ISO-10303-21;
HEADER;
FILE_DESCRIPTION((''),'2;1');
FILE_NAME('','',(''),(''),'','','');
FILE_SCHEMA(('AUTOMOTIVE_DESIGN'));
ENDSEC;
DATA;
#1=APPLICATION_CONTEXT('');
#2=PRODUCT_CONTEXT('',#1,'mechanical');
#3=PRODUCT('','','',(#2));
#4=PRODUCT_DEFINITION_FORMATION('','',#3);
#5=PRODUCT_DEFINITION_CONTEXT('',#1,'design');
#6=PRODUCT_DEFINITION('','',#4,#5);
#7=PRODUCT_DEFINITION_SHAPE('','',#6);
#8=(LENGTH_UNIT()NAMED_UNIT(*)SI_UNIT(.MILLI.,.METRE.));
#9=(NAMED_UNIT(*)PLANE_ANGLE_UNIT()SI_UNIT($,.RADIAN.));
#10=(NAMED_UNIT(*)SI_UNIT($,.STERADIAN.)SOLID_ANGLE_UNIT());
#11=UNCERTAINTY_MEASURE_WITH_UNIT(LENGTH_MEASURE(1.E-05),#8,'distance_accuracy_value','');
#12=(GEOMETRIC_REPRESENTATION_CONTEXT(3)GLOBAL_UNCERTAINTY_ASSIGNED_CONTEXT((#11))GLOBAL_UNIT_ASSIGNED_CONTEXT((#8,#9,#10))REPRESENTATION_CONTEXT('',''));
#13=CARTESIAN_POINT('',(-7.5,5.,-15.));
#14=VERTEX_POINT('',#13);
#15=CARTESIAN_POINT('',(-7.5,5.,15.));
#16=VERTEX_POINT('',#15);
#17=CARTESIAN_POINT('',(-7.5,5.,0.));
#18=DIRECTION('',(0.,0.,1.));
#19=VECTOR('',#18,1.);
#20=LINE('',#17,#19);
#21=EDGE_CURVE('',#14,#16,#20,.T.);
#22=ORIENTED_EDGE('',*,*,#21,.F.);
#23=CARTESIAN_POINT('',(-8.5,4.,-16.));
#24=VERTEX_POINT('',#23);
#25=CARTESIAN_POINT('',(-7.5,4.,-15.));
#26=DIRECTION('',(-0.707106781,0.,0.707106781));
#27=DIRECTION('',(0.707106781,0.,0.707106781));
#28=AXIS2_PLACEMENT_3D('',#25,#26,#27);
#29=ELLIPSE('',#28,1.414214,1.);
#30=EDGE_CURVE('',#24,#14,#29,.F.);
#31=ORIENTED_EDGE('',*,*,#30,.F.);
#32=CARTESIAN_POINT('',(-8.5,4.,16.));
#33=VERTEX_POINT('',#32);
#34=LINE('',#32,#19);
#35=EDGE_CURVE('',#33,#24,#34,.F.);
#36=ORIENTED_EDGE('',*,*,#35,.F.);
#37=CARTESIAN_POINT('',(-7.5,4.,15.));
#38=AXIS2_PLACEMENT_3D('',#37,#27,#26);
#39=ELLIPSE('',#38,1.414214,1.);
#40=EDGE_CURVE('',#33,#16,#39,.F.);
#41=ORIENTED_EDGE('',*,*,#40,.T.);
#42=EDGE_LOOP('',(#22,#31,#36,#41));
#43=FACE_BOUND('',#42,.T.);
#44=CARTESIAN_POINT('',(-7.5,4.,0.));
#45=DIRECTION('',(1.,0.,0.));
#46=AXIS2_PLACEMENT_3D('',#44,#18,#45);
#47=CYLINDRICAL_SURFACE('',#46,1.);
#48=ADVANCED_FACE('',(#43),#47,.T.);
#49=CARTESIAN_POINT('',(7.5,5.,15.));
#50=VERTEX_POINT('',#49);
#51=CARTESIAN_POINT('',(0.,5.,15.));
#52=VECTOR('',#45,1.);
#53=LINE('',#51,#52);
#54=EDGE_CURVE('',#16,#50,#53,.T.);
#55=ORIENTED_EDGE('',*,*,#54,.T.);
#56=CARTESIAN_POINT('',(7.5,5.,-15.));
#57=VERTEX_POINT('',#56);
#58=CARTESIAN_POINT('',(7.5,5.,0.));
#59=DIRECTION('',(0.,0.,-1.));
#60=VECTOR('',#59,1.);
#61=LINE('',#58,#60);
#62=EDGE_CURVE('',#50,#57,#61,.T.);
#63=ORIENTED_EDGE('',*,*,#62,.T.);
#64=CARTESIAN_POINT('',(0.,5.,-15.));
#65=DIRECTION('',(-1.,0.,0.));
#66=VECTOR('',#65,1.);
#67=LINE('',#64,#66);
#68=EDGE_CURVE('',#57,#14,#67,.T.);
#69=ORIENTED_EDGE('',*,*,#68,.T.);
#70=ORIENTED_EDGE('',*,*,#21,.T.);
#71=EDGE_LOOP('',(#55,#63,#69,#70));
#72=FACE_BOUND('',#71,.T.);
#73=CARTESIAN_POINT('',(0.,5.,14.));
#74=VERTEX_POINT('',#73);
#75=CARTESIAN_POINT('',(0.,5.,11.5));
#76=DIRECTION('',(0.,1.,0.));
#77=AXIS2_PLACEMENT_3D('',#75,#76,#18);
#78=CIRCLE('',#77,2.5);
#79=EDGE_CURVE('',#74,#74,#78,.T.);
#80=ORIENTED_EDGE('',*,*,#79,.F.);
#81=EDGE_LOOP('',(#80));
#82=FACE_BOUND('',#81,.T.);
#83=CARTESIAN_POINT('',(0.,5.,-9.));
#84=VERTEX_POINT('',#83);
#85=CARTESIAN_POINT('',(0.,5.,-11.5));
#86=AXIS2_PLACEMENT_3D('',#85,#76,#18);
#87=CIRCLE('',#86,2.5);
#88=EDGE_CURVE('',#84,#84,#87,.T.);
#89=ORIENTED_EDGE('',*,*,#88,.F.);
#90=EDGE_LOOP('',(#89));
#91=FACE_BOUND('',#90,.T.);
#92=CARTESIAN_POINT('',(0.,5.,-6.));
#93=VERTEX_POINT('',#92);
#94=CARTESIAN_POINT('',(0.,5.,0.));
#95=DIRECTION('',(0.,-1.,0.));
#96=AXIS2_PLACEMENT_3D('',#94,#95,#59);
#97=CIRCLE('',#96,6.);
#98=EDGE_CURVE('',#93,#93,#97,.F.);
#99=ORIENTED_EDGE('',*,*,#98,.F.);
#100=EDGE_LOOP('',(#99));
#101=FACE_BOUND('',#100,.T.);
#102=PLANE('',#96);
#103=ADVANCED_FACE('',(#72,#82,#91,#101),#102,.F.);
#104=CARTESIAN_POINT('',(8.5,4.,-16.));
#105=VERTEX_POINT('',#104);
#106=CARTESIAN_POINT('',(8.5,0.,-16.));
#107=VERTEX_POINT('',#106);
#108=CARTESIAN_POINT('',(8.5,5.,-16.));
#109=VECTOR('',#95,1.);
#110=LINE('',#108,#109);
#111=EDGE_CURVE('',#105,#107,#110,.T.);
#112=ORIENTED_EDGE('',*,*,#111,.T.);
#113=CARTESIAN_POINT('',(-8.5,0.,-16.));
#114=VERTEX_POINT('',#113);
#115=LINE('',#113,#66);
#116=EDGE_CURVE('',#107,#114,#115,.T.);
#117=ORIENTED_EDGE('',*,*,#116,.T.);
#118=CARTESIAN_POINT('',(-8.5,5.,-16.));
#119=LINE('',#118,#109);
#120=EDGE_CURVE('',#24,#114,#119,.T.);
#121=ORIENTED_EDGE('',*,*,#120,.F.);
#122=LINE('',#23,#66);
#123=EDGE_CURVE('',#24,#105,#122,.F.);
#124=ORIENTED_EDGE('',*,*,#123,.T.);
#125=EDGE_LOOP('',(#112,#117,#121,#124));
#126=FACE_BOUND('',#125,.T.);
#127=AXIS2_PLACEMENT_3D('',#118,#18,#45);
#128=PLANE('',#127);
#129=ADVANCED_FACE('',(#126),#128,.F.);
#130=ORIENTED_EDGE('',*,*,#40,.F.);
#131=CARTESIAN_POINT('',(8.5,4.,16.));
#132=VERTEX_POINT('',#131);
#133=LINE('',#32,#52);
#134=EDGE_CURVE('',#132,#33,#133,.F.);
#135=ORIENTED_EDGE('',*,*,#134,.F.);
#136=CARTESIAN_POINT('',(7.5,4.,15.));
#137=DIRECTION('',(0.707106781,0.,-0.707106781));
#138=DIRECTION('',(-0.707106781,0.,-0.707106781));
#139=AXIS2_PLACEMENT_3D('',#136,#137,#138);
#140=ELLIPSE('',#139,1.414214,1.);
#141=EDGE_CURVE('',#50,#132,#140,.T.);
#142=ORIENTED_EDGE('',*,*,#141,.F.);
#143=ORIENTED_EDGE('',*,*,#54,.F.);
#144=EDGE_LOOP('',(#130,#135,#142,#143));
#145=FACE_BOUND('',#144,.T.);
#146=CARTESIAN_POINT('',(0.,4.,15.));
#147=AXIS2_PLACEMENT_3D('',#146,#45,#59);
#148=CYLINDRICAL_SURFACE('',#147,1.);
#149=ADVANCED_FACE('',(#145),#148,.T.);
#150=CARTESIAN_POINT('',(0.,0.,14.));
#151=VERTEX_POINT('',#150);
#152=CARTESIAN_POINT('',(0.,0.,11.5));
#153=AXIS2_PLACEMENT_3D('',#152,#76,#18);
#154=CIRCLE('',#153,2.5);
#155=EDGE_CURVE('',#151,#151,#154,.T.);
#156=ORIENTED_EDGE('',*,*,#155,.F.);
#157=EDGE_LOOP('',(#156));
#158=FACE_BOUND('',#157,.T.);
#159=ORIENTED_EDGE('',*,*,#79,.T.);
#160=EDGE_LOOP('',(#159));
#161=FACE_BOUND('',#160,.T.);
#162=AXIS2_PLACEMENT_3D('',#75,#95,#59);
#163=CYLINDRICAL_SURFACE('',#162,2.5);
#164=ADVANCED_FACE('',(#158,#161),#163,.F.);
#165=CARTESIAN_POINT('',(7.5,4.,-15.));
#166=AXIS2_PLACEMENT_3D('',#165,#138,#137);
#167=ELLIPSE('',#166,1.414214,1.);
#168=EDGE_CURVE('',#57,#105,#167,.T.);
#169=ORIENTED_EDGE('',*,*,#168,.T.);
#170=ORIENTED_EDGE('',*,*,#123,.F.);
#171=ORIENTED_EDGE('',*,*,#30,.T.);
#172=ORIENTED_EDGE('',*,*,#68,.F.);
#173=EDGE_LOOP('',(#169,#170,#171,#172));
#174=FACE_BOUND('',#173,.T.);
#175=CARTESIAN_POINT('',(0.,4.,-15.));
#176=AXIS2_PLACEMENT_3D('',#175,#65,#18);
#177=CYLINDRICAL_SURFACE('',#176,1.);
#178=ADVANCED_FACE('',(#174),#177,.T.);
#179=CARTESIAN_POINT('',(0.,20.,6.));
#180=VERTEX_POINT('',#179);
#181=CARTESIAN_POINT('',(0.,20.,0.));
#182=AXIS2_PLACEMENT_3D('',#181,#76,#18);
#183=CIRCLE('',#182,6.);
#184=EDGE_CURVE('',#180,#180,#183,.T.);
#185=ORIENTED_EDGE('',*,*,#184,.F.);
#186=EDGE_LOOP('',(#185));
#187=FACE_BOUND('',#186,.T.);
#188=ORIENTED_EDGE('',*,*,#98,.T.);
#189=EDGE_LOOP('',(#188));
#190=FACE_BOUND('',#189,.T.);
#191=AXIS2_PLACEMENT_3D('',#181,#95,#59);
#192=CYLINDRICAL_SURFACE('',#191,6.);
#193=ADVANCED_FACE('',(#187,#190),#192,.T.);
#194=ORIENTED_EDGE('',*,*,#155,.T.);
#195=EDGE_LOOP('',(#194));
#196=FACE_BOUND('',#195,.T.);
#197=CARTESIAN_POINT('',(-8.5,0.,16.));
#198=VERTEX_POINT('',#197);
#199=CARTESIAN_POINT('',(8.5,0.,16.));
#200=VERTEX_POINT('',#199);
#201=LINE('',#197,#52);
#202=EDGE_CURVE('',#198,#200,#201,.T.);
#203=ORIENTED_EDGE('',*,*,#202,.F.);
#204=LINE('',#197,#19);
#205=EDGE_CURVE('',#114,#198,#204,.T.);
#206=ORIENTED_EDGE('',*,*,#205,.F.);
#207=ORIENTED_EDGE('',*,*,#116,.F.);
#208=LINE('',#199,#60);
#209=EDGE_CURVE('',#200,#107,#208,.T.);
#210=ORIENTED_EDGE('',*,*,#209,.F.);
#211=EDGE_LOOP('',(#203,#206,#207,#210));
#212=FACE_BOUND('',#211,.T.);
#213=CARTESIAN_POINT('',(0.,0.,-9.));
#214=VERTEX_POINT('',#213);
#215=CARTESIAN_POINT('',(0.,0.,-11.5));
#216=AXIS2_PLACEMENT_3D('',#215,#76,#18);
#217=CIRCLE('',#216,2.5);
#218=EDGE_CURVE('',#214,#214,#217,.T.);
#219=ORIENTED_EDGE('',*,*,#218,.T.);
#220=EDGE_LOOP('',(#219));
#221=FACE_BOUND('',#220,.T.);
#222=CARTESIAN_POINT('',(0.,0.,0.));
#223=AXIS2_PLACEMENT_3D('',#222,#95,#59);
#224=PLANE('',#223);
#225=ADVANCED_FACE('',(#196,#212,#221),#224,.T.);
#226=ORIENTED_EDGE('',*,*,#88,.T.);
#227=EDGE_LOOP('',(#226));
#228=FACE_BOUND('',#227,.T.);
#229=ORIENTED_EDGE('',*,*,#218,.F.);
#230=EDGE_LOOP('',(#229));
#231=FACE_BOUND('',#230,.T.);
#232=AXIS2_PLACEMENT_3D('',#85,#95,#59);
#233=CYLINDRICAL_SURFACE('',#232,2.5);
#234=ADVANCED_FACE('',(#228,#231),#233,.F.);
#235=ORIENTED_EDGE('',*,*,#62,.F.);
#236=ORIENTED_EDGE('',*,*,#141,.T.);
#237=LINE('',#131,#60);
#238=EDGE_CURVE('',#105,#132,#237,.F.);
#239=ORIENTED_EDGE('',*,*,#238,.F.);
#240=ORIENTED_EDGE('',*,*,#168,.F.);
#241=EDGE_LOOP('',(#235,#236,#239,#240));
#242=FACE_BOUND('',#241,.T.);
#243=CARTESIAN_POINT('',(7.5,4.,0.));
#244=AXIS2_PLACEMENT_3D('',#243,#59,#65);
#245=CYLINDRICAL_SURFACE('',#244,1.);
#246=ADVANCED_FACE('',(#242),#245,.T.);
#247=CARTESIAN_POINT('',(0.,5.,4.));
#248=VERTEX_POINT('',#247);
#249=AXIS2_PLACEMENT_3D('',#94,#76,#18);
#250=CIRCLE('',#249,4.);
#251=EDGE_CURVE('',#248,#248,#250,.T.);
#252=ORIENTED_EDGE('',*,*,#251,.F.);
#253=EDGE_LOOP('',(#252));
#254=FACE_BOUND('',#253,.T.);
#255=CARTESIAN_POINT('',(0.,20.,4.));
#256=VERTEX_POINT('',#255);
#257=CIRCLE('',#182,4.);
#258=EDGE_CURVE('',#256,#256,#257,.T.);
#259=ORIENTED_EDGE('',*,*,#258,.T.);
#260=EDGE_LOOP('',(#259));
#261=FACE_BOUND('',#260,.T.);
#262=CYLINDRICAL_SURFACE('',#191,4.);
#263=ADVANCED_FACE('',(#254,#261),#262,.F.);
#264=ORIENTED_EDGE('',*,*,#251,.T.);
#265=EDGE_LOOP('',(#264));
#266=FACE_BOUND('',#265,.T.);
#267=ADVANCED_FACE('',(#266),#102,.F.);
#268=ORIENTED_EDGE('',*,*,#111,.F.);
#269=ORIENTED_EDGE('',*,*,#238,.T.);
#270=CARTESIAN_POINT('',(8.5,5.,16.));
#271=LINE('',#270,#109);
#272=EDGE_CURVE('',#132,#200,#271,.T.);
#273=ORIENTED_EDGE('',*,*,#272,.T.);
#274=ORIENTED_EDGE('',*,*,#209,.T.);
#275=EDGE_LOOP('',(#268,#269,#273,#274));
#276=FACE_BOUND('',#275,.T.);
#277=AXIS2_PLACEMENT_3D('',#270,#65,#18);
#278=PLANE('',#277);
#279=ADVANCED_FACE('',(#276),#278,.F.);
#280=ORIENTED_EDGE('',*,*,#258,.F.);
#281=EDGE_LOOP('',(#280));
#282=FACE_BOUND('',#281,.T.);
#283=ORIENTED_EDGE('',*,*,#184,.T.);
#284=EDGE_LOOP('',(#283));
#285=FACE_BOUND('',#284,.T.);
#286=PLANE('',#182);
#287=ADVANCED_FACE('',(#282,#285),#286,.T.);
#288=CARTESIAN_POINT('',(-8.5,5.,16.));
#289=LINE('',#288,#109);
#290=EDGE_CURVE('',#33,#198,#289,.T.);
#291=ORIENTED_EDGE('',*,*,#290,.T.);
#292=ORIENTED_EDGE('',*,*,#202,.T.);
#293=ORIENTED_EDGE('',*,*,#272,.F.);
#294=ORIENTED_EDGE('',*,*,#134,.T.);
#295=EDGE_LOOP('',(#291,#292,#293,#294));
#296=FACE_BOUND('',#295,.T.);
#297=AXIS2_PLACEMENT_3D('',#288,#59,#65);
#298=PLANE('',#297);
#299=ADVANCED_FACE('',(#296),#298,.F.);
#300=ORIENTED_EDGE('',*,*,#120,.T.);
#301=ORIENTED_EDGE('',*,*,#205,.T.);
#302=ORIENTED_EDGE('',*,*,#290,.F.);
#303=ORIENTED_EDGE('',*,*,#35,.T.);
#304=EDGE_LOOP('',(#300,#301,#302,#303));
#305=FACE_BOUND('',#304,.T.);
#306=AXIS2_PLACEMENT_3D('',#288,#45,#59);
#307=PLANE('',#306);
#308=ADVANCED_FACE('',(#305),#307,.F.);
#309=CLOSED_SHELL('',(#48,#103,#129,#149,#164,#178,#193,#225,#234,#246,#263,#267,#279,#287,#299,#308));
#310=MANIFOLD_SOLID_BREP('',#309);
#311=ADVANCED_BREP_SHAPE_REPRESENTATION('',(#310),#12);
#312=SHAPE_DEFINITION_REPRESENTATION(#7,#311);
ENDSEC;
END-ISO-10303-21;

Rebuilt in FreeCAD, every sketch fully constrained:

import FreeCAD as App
import Part
import Sketcher
Q = App.Units.Quantity


def edges_at(feature, points):
    """Names of the edges that pass closest to the given points."""
    edges = feature.Shape.Edges
    near = lambda p: min(range(len(edges)), key=lambda i: edges[i].distToShape(Part.Vertex(*p))[0])
    return sorted({f"Edge{near(p) + 1}" for p in points})

doc = App.newDocument("Part")
body = doc.addObject("PartDesign::Body", "Body")

# Sketch on XZ plane
sketch1 = body.newObject("Sketcher::SketchObject", "Sketch")
sketch1.AttachmentSupport = (doc.getObject("XZ_Plane"), [""])
sketch1.MapMode = "FlatFace"
sketch1.addGeometry(Part.LineSegment(App.Vector(-8.5, -16, 0), App.Vector(-8.5, 16, 0)), False)
sketch1.addGeometry(Part.LineSegment(App.Vector(-8.5, 16, 0), App.Vector(8.5, 16, 0)), False)
sketch1.addGeometry(Part.LineSegment(App.Vector(8.5, 16, 0), App.Vector(8.5, -16, 0)), False)
sketch1.addGeometry(Part.LineSegment(App.Vector(8.5, -16, 0), App.Vector(-8.5, -16, 0)), False)
sketch1.addGeometry(Part.Circle(App.Vector(0, 11.5, 0), App.Vector(0, 0, 1), 2.5), False)
sketch1.addGeometry(Part.Circle(App.Vector(0, -11.5, 0), App.Vector(0, 0, 1), 2.5), False)
sketch1.addConstraint(Sketcher.Constraint("Coincident", 0, 2, 1, 1))
sketch1.addConstraint(Sketcher.Constraint("Coincident", 1, 2, 2, 1))
sketch1.addConstraint(Sketcher.Constraint("Coincident", 2, 2, 3, 1))
sketch1.addConstraint(Sketcher.Constraint("Coincident", 3, 2, 0, 1))
sketch1.addConstraint(Sketcher.Constraint("Vertical", 0))
sketch1.addConstraint(Sketcher.Constraint("Horizontal", 1))
sketch1.addConstraint(Sketcher.Constraint("Vertical", 2))
sketch1.addConstraint(Sketcher.Constraint("Horizontal", 3))
sketch1.addConstraint(Sketcher.Constraint("Equal", 4, 5))
sketch1.addConstraint(Sketcher.Constraint("Symmetric", 4, 3, 5, 3, -1, 1))
sketch1.addConstraint(Sketcher.Constraint("Symmetric", 0, 2, 2, 2, -1, 1))
sketch1.addConstraint(Sketcher.Constraint("PointOnObject", 4, 3, -2))
sketch1.addConstraint(Sketcher.Constraint("Diameter", 4, Q("5 mm")))
sketch1.addConstraint(Sketcher.Constraint("DistanceX", 1, 1, 1, 2, Q("17 mm")))
sketch1.addConstraint(Sketcher.Constraint("DistanceY", 0, 1, 0, 2, Q("32 mm")))
sketch1.addConstraint(Sketcher.Constraint("DistanceY", 5, 3, 4, 3, Q("23 mm")))
pad1 = body.newObject("PartDesign::Pad", "Pad")
pad1.Profile = sketch1
pad1.Length = 5
pad1.Reversed = True

# Sketch on XZ plane
sketch2 = body.newObject("Sketcher::SketchObject", "Sketch001")
sketch2.AttachmentSupport = (doc.getObject("XZ_Plane"), [""])
sketch2.MapMode = "FlatFace"
sketch2.AttachmentOffset = App.Placement(App.Vector(0, 0, -5), App.Rotation())
sketch2.addGeometry(Part.Circle(App.Vector(0, 0, 0), App.Vector(0, 0, 1), 6), False)
sketch2.addGeometry(Part.Circle(App.Vector(0, 0, 0), App.Vector(0, 0, 1), 4), False)
sketch2.addConstraint(Sketcher.Constraint("Coincident", 0, 3, -1, 1))
sketch2.addConstraint(Sketcher.Constraint("Coincident", 1, 3, -1, 1))
sketch2.addConstraint(Sketcher.Constraint("Diameter", 0, Q("12 mm")))
sketch2.addConstraint(Sketcher.Constraint("Diameter", 1, Q("8 mm")))
pad2 = body.newObject("PartDesign::Pad", "Pad001")
pad2.Profile = sketch2
pad2.Length = 15
pad2.Reversed = True
doc.recompute()

fillet = body.newObject("PartDesign::Fillet", "Fillet")
fillet.Base = (pad2, edges_at(pad2, [
    (-8.5, 5, 0),
    (0, 5, 16),
    (8.5, 5, 0),
    (0, 5, -16),
]))
fillet.Radius = 1

doc.recompute()
